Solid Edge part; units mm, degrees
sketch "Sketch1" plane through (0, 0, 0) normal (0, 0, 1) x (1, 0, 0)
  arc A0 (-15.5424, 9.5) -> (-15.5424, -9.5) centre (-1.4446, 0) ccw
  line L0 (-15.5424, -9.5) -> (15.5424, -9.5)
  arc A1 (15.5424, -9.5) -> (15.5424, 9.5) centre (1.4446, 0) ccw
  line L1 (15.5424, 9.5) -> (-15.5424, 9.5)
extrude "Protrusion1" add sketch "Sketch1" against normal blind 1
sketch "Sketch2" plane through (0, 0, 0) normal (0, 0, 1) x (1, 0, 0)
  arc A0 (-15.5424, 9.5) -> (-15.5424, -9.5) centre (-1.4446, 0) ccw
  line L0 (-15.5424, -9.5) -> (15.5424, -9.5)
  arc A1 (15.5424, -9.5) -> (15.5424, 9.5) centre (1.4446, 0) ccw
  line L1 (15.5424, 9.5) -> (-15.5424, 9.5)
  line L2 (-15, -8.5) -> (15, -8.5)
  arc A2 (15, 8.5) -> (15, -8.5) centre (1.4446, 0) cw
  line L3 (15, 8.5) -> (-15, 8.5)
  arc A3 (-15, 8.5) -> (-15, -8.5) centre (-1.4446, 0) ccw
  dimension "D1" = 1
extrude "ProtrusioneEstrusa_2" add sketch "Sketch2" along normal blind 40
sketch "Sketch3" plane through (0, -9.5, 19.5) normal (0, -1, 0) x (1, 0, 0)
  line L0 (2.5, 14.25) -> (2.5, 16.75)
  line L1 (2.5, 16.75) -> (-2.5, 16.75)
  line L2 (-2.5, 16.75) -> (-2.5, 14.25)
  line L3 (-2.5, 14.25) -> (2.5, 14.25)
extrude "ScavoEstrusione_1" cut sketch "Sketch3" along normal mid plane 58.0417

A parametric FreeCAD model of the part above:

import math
import FreeCAD as App
import Part
import Sketcher
Q = App.Units.Quantity


def add_polygon(sketch, points):
    """Adds a closed chain of lines whose ends are joined by coincident constraints."""
    first, n = sketch.GeometryCount, len(points)
    for a, b in zip(points, points[1:] + points[:1]):
        sketch.addGeometry(Part.LineSegment(App.Vector(*a, 0), App.Vector(*b, 0)), False)
    for i in range(n):
        sketch.addConstraint(Sketcher.Constraint("Coincident", first + i, 2, first + (i + 1) % n, 1))

doc = App.newDocument("Part")
body = doc.addObject("PartDesign::Body", "Body")

# Sketch on XY plane
sketch1 = body.newObject("Sketcher::SketchObject", "Sketch")
sketch1.AttachmentSupport = (doc.getObject("XY_Plane"), [""])
sketch1.MapMode = "FlatFace"
sketch1.addGeometry(Part.LineSegment(App.Vector(16, 10, 0), App.Vector(-16, 10, 0)), False)
sketch1.addGeometry(Part.ArcOfCircle(Part.Circle(App.Vector(-1, 0, 0), App.Vector(0, 0, 1), 17), math.radians(146), math.radians(214)), False)
sketch1.addGeometry(Part.LineSegment(App.Vector(-16, -10, 0), App.Vector(16, -10, 0)), False)
sketch1.addGeometry(Part.ArcOfCircle(Part.Circle(App.Vector(1, 0, 0), App.Vector(0, 0, 1), 17), math.radians(-34), math.radians(34)), False)
sketch1.addConstraint(Sketcher.Constraint("Coincident", 0, 2, 1, 1))
sketch1.addConstraint(Sketcher.Constraint("Coincident", 1, 2, 2, 1))
sketch1.addConstraint(Sketcher.Constraint("Coincident", 2, 2, 3, 1))
sketch1.addConstraint(Sketcher.Constraint("Coincident", 3, 2, 0, 1))
sketch1.addConstraint(Sketcher.Constraint("Horizontal", 0))
sketch1.addConstraint(Sketcher.Constraint("Horizontal", 2))
sketch1.addConstraint(Sketcher.Constraint("Equal", 1, 3))
sketch1.addConstraint(Sketcher.Constraint("Symmetric", 1, 3, 3, 3, -1, 1))
sketch1.addConstraint(Sketcher.Constraint("Symmetric", 0, 2, 1, 2, -1))
sketch1.addConstraint(Sketcher.Constraint("Radius", 1, Q("17 mm")))
sketch1.addConstraint(Sketcher.Constraint("DistanceY", 1, 2, 0, 2, Q("19 mm")))
sketch1.addConstraint(Sketcher.Constraint("DistanceX", 0, 2, 0, 1, Q("31.0848 mm")))
pad1 = body.newObject("PartDesign::Pad", "Pad")
pad1.Profile = sketch1
pad1.Length = 1
pad1.Reversed = True

# Sketch on XY plane
sketch2 = body.newObject("Sketcher::SketchObject", "Sketch001")
sketch2.AttachmentSupport = (doc.getObject("XY_Plane"), [""])
sketch2.MapMode = "FlatFace"
sketch2.addGeometry(Part.LineSegment(App.Vector(16, 10, 0), App.Vector(-16, 10, 0)), False)
sketch2.addGeometry(Part.ArcOfCircle(Part.Circle(App.Vector(-1, 0, 0), App.Vector(0, 0, 1), 17), math.radians(146), math.radians(214)), False)
sketch2.addGeometry(Part.LineSegment(App.Vector(-16, -10, 0), App.Vector(16, -10, 0)), False)
sketch2.addGeometry(Part.ArcOfCircle(Part.Circle(App.Vector(1, 0, 0), App.Vector(0, 0, 1), 17), math.radians(-34), math.radians(34)), False)
sketch2.addGeometry(Part.LineSegment(App.Vector(15, -8, 0), App.Vector(-15, -8, 0)), False)
sketch2.addGeometry(Part.ArcOfCircle(Part.Circle(App.Vector(-1, 0, 0), App.Vector(0, 0, 1), 16), math.radians(148), math.radians(212)), False)
sketch2.addGeometry(Part.LineSegment(App.Vector(-15, 8, 0), App.Vector(15, 8, 0)), False)
sketch2.addGeometry(Part.ArcOfCircle(Part.Circle(App.Vector(1, 0, 0), App.Vector(0, 0, 1), 16), math.radians(-32), math.radians(32)), False)
sketch2.addConstraint(Sketcher.Constraint("Coincident", 0, 2, 1, 1))
sketch2.addConstraint(Sketcher.Constraint("Coincident", 1, 2, 2, 1))
sketch2.addConstraint(Sketcher.Constraint("Coincident", 2, 2, 3, 1))
sketch2.addConstraint(Sketcher.Constraint("Coincident", 3, 2, 0, 1))
sketch2.addConstraint(Sketcher.Constraint("Coincident", 4, 2, 5, 2))
sketch2.addConstraint(Sketcher.Constraint("Coincident", 5, 1, 6, 1))
sketch2.addConstraint(Sketcher.Constraint("Coincident", 6, 2, 7, 2))
sketch2.addConstraint(Sketcher.Constraint("Coincident", 7, 1, 4, 1))
sketch2.addConstraint(Sketcher.Constraint("Horizontal", 0))
sketch2.addConstraint(Sketcher.Constraint("Horizontal", 2))
sketch2.addConstraint(Sketcher.Constraint("Horizontal", 4))
sketch2.addConstraint(Sketcher.Constraint("Horizontal", 6))
sketch2.addConstraint(Sketcher.Constraint("Coincident", 5, 3, 1, 3))
sketch2.addConstraint(Sketcher.Constraint("Coincident", 7, 3, 3, 3))
sketch2.addConstraint(Sketcher.Constraint("Equal", 1, 3))
sketch2.addConstraint(Sketcher.Constraint("Equal", 5, 7))
sketch2.addConstraint(Sketcher.Constraint("Symmetric", 1, 3, 3, 3, -1, 1))
sketch2.addConstraint(Sketcher.Constraint("Symmetric", 0, 2, 1, 2, -1))
sketch2.addConstraint(Sketcher.Constraint("Vertical", 4, 2, 5, 1))
sketch2.addConstraint(Sketcher.Constraint("Radius", 1, Q("17 mm")))
sketch2.addConstraint(Sketcher.Constraint("Radius", 5, Q("16 mm")))
sketch2.addConstraint(Sketcher.Constraint("DistanceX", 4, 2, 4, 1, Q("30 mm")))
sketch2.addConstraint(Sketcher.Constraint("DistanceY", 1, 2, 0, 2, Q("19 mm")))
sketch2.addConstraint(Sketcher.Constraint("DistanceY", 1, 2, 4, 2, Q("1 mm")))
pad2 = body.newObject("PartDesign::Pad", "Pad001")
pad2.Profile = sketch2
pad2.Length = 40

# Sketch on XZ plane
sketch3 = body.newObject("Sketcher::SketchObject", "Sketch002")
sketch3.AttachmentSupport = (doc.getObject("XZ_Plane"), [""])
sketch3.MapMode = "FlatFace"
sketch3.AttachmentOffset = App.Placement(App.Vector(0, 0, 9.5), App.Rotation())
add_polygon(sketch3, [(-2.5, 33.8), (2.5, 33.8), (2.5, 36.2), (-2.5, 36.2)])  # lines 0-3
sketch3.addConstraint(Sketcher.Constraint("Horizontal", 0))
sketch3.addConstraint(Sketcher.Constraint("Vertical", 1))
sketch3.addConstraint(Sketcher.Constraint("Horizontal", 2))
sketch3.addConstraint(Sketcher.Constraint("Vertical", 3))
sketch3.addConstraint(Sketcher.Constraint("DistanceX", 0, 1, 0, 2, Q("5 mm")))
sketch3.addConstraint(Sketcher.Constraint("DistanceY", 1, 1, 1, 2, Q("2.5 mm")))
sketch3.addConstraint(Sketcher.Constraint("DistanceX", -1, 1, 0, 2, Q("2.5 mm")))
sketch3.addConstraint(Sketcher.Constraint("DistanceY", -1, 1, 0, 2, Q("33.75 mm")))
pocket1 = body.newObject("PartDesign::Pocket", "Pocket")
pocket1.Profile = sketch3
pocket1.Length = 58.0417
pocket1.Midplane = True

doc.recompute()
